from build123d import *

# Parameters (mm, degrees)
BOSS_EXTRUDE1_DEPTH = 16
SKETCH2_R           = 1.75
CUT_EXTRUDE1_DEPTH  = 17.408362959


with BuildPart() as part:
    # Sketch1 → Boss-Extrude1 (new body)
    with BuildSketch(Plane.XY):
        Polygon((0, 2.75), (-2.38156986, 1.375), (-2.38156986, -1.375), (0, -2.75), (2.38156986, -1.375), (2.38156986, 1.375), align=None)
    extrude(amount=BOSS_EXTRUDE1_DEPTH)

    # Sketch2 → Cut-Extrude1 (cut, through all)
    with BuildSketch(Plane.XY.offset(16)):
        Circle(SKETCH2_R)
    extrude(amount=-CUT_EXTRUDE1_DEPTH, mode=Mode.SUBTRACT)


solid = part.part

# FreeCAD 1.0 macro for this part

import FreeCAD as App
import Part
import Sketcher
Q = App.Units.Quantity

doc = App.newDocument("Part")
params = doc.addObject("Spreadsheet::Sheet", "Params")
for row, (alias, value) in enumerate([
    ("sketch1_height", "2.75 mm"),
    ("pad1_length", "16 mm"),
    ("sketch2_diameter", "3.5 mm"),
], start=1):
    params.set(f"A{row}", alias)
    params.set(f"B{row}", "=" + value)
    params.setAlias(f"B{row}", alias)

body = doc.addObject("PartDesign::Body", "Body")

sketch1 = body.newObject("Sketcher::SketchObject", "Sketch")
sketch1.AttachmentSupport = (doc.getObject("XY_Plane"), [""])
sketch1.MapMode = "FlatFace"
sketch1.addGeometry(Part.LineSegment(App.Vector(0, 2.8, 0), App.Vector(-2.4, 1.4, 0)), False)
sketch1.addGeometry(Part.LineSegment(App.Vector(-2.4, 1.4, 0), App.Vector(-2.4, -1.4, 0)), False)
sketch1.addGeometry(Part.LineSegment(App.Vector(-2.4, -1.4, 0), App.Vector(0, -2.8, 0)), False)
sketch1.addGeometry(Part.LineSegment(App.Vector(0, -2.8, 0), App.Vector(2.4, -1.4, 0)), False)
sketch1.addGeometry(Part.LineSegment(App.Vector(2.4, -1.4, 0), App.Vector(2.4, 1.4, 0)), False)
sketch1.addGeometry(Part.LineSegment(App.Vector(2.4, 1.4, 0), App.Vector(0, 2.8, 0)), False)
sketch1.addConstraint(Sketcher.Constraint("Coincident", 0, 2, 1, 1))
sketch1.addConstraint(Sketcher.Constraint("Coincident", 1, 2, 2, 1))
sketch1.addConstraint(Sketcher.Constraint("Coincident", 2, 2, 3, 1))
sketch1.addConstraint(Sketcher.Constraint("Coincident", 3, 2, 4, 1))
sketch1.addConstraint(Sketcher.Constraint("Coincident", 4, 2, 5, 1))
sketch1.addConstraint(Sketcher.Constraint("Coincident", 5, 2, 0, 1))
sketch1.addConstraint(Sketcher.Constraint("Vertical", 1))
sketch1.addConstraint(Sketcher.Constraint("Vertical", 4))
sketch1.addConstraint(Sketcher.Constraint("Symmetric", 0, 2, 3, 2, -1, 1))
sketch1.addConstraint(Sketcher.Constraint("Symmetric", 2, 2, 5, 2, -1, 1))
sketch1.addConstraint(Sketcher.Constraint("PointOnObject", 2, 2, -2))
sketch1.addConstraint(Sketcher.Constraint("Parallel", 2, 5))
sketch1.addConstraint(Sketcher.Constraint("Horizontal", 1, 2, 3, 2))
sketch1.addConstraint(Sketcher.Constraint("Angle", 0, Q("-150 deg")))
sketch1.addConstraint(Sketcher.Constraint("DistanceY", 1, 2, 1, 1, Q("2.75 mm")))
sketch1.addConstraint(Sketcher.Constraint("DistanceY", 2, 2, 5, 2, Q("5.5 mm")))
sketch1.setExpression("Constraints[14]", "Params.sketch1_height")
pad1 = body.newObject("PartDesign::Pad", "Pad")
pad1.Profile = sketch1
pad1.setExpression("Length", "Params.pad1_length")

sketch2 = body.newObject("Sketcher::SketchObject", "Sketch001")
sketch2.AttachmentSupport = (doc.getObject("XY_Plane"), [""])
sketch2.MapMode = "FlatFace"
sketch2.AttachmentOffset = App.Placement(App.Vector(0, 0, 16), App.Rotation())
sketch2.addGeometry(Part.Circle(App.Vector(0, 0, 0), App.Vector(0, 0, 1), 1.8), False)
sketch2.addConstraint(Sketcher.Constraint("Coincident", 0, 3, -1, 1))
sketch2.addConstraint(Sketcher.Constraint("Diameter", 0, Q("3.5 mm")))
sketch2.setExpression("Constraints[1]", "Params.sketch2_diameter")
pocket1 = body.newObject("PartDesign::Pocket", "Pocket")
pocket1.Profile = sketch2
pocket1.Type = "ThroughAll"

doc.recompute()
